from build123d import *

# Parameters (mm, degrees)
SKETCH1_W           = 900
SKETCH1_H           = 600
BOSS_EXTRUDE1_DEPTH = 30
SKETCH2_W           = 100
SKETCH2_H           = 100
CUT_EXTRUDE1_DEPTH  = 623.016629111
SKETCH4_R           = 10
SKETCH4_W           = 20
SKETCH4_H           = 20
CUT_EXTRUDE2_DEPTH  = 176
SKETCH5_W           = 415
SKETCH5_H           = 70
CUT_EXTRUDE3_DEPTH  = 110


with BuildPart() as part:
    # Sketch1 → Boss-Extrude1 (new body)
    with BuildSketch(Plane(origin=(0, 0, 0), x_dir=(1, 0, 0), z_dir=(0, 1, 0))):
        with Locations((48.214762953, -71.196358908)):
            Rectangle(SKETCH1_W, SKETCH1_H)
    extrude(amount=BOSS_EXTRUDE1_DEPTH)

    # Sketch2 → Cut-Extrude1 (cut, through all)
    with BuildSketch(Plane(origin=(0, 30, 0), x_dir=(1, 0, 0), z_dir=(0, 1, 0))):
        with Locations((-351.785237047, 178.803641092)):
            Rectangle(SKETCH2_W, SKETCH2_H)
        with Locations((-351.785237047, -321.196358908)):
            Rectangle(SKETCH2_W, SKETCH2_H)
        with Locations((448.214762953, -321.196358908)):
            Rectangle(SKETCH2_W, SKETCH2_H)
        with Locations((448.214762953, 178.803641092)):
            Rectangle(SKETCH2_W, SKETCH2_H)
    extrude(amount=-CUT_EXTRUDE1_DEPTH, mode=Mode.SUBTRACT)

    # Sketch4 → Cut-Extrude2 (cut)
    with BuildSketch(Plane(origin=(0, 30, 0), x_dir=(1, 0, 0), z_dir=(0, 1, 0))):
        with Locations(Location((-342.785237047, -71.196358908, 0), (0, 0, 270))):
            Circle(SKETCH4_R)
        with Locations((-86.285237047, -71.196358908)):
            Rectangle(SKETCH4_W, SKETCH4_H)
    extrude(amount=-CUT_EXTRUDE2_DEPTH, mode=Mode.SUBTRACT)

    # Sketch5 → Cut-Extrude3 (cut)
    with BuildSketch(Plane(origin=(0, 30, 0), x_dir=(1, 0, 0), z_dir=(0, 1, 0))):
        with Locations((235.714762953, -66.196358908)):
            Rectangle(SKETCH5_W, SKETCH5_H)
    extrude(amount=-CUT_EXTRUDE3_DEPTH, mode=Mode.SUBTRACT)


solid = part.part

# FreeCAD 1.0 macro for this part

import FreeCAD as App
import Part
import Sketcher
from FreeCAD import Vector
Q = App.Units.Quantity

doc = App.newDocument("Part")
params = doc.addObject("Spreadsheet::Sheet", "Params")
for row, (alias, value) in enumerate([
    ("sketch1_width", "900 mm"),
    ("sketch1_height", "600 mm"),
    ("pad1_length", "30 mm"),
    ("sketch2_width", "100 mm"),
    ("sketch3_diameter", "20 mm"),
    ("sketch3_width", "20 mm"),
    ("pocket2_length", "176 mm"),
    ("sketch4_width", "415 mm"),
    ("sketch4_height", "70 mm"),
    ("pocket3_length", "110 mm"),
], start=1):
    params.set(f"A{row}", alias)
    params.set(f"B{row}", "=" + value)
    params.setAlias(f"B{row}", alias)

body = doc.addObject("PartDesign::Body", "Body")

# Sketch on XZ plane
sketch1 = body.newObject("Sketcher::SketchObject", "Sketch")
sketch1.AttachmentSupport = (doc.getObject("XZ_Plane"), [""])
sketch1.MapMode = "FlatFace"
sketch1.addGeometry([
    Part.LineSegment(Vector(-401.785237, -228.803641, 0), Vector(-401.785237, 371.196359, 0)),
    Part.LineSegment(Vector(-401.785237, 371.196359, 0), Vector(498.214763, 371.196359, 0)),
    Part.LineSegment(Vector(498.214763, 371.196359, 0), Vector(498.214763, -228.803641, 0)),
    Part.LineSegment(Vector(498.214763, -228.803641, 0), Vector(-401.785237, -228.803641, 0)),
], False)
sketch1.addConstraint([
    Sketcher.Constraint("Coincident", 0, 2, 1, 1),
    Sketcher.Constraint("Coincident", 1, 2, 2, 1),
    Sketcher.Constraint("Coincident", 2, 2, 3, 1),
    Sketcher.Constraint("Coincident", 3, 2, 0, 1),
    Sketcher.Constraint("Vertical", 0),
    Sketcher.Constraint("Horizontal", 1),
    Sketcher.Constraint("Vertical", 2),
    Sketcher.Constraint("Horizontal", 3),
    Sketcher.Constraint("DistanceX", 1, 1, 1, 2, Q("900 mm")),
    Sketcher.Constraint("DistanceY", 0, 1, 0, 2, Q("600 mm")),
    Sketcher.Constraint("DistanceY", -1, 1, 0, 2, Q("371.196359 mm")),
    Sketcher.Constraint("DistanceX", 0, 2, -1, 1, Q("401.785237 mm")),
])
sketch1.setExpression("Constraints[8]", "Params.sketch1_width")
sketch1.setExpression("Constraints[9]", "Params.sketch1_height")
pad1 = body.newObject("PartDesign::Pad", "Pad")
pad1.Profile = sketch1
pad1.setExpression("Length", "Params.pad1_length")
pad1.Reversed = True

# Sketch on XZ plane
sketch2 = body.newObject("Sketcher::SketchObject", "Sketch001")
sketch2.AttachmentSupport = (doc.getObject("XZ_Plane"), [""])
sketch2.MapMode = "FlatFace"
sketch2.AttachmentOffset = App.Placement(Vector(0, 0, -30), App.Rotation())
sketch2.addGeometry([
    Part.LineSegment(Vector(-401.785237, -228.803641, 0), Vector(-401.785237, -128.803641, 0)),  # 0
    Part.LineSegment(Vector(-401.785237, -128.803641, 0), Vector(-301.785237, -128.803641, 0)),  # 1
    Part.LineSegment(Vector(-301.785237, -128.803641, 0), Vector(-301.785237, -228.803641, 0)),  # 2
    Part.LineSegment(Vector(-301.785237, -228.803641, 0), Vector(-401.785237, -228.803641, 0)),  # 3
    Part.LineSegment(Vector(-401.785237, 271.196359, 0), Vector(-401.785237, 371.196359, 0)),  # 4
    Part.LineSegment(Vector(-401.785237, 371.196359, 0), Vector(-301.785237, 371.196359, 0)),  # 5
    Part.LineSegment(Vector(-301.785237, 371.196359, 0), Vector(-301.785237, 271.196359, 0)),  # 6
    Part.LineSegment(Vector(-301.785237, 271.196359, 0), Vector(-401.785237, 271.196359, 0)),  # 7
    Part.LineSegment(Vector(398.214763, 271.196359, 0), Vector(398.214763, 371.196359, 0)),  # 8
    Part.LineSegment(Vector(398.214763, 371.196359, 0), Vector(498.214763, 371.196359, 0)),  # 9
    Part.LineSegment(Vector(498.214763, 371.196359, 0), Vector(498.214763, 271.196359, 0)),  # 10
    Part.LineSegment(Vector(498.214763, 271.196359, 0), Vector(398.214763, 271.196359, 0)),  # 11
    Part.LineSegment(Vector(398.214763, -228.803641, 0), Vector(398.214763, -128.803641, 0)),  # 12
    Part.LineSegment(Vector(398.214763, -128.803641, 0), Vector(498.214763, -128.803641, 0)),  # 13
    Part.LineSegment(Vector(498.214763, -128.803641, 0), Vector(498.214763, -228.803641, 0)),  # 14
    Part.LineSegment(Vector(498.214763, -228.803641, 0), Vector(398.214763, -228.803641, 0)),  # 15
], False)
sketch2.addConstraint([
    Sketcher.Constraint("Coincident", 0, 2, 1, 1),
    Sketcher.Constraint("Coincident", 1, 2, 2, 1),
    Sketcher.Constraint("Coincident", 2, 2, 3, 1),
    Sketcher.Constraint("Coincident", 3, 2, 0, 1),
    Sketcher.Constraint("Coincident", 4, 2, 5, 1),
    Sketcher.Constraint("Coincident", 5, 2, 6, 1),
    Sketcher.Constraint("Coincident", 6, 2, 7, 1),
    Sketcher.Constraint("Coincident", 7, 2, 4, 1),
    Sketcher.Constraint("Coincident", 8, 2, 9, 1),
    Sketcher.Constraint("Coincident", 9, 2, 10, 1),
    Sketcher.Constraint("Coincident", 10, 2, 11, 1),
    Sketcher.Constraint("Coincident", 11, 2, 8, 1),
    Sketcher.Constraint("Coincident", 12, 2, 13, 1),
    Sketcher.Constraint("Coincident", 13, 2, 14, 1),
    Sketcher.Constraint("Coincident", 14, 2, 15, 1),
    Sketcher.Constraint("Coincident", 15, 2, 12, 1),
    Sketcher.Constraint("Vertical", 0),
    Sketcher.Constraint("Horizontal", 1),
    Sketcher.Constraint("Vertical", 2),
    Sketcher.Constraint("Horizontal", 3),
    Sketcher.Constraint("Vertical", 4),
    Sketcher.Constraint("Horizontal", 5),
    Sketcher.Constraint("Vertical", 6),
    Sketcher.Constraint("Horizontal", 7),
    Sketcher.Constraint("Vertical", 8),
    Sketcher.Constraint("Horizontal", 9),
    Sketcher.Constraint("Vertical", 10),
    Sketcher.Constraint("Horizontal", 11),
    Sketcher.Constraint("Vertical", 12),
    Sketcher.Constraint("Horizontal", 13),
    Sketcher.Constraint("Vertical", 14),
    Sketcher.Constraint("Horizontal", 15),
    Sketcher.Constraint("Horizontal", 5, 2, 8, 2),
    Sketcher.Constraint("Horizontal", 7, 2, 10, 2),
    Sketcher.Constraint("Horizontal", 1, 2, 12, 2),
    Sketcher.Constraint("Horizontal", 3, 2, 14, 2),
    Sketcher.Constraint("Vertical", 3, 2, 4, 2),
    Sketcher.Constraint("Vertical", 2, 2, 5, 2),
    Sketcher.Constraint("Vertical", 11, 2, 12, 2),
    Sketcher.Constraint("Vertical", 10, 2, 13, 2),
    Sketcher.Constraint("Equal", 7, 9),
    Sketcher.Constraint("Equal", 15, 0),
    Sketcher.Constraint("Equal", 2, 4),
    Sketcher.Constraint("DistanceX", 1, 1, 1, 2, Q("100 mm")),
    Sketcher.Constraint("DistanceY", 0, 2, 4, 2, Q("500 mm")),
    Sketcher.Constraint("DistanceX", 5, 2, 8, 2, Q("700 mm")),
    Sketcher.Constraint("DistanceY", 0, 2, -1, 1, Q("128.803641 mm")),
    Sketcher.Constraint("DistanceX", 0, 2, -1, 1, Q("401.785237 mm")),
])
sketch2.setExpression("Constraints[43]", "Params.sketch2_width")
pocket1 = body.newObject("PartDesign::Pocket", "Pocket")
pocket1.Profile = sketch2
pocket1.Type = "ThroughAll"
pocket1.Reversed = True

# Sketch on XZ plane
sketch3 = body.newObject("Sketcher::SketchObject", "Sketch002")
sketch3.AttachmentSupport = (doc.getObject("XZ_Plane"), [""])
sketch3.MapMode = "FlatFace"
sketch3.AttachmentOffset = App.Placement(Vector(0, 0, -30), App.Rotation())
sketch3.addGeometry([
    Part.Circle(Vector(-342.785237, 71.196359, 0), Vector(0, 0, 1), 10),  # 0
    Part.LineSegment(Vector(-96.285237, 61.196359, 0), Vector(-96.285237, 81.196359, 0)),  # 1
    Part.LineSegment(Vector(-96.285237, 81.196359, 0), Vector(-76.285237, 81.196359, 0)),  # 2
    Part.LineSegment(Vector(-76.285237, 81.196359, 0), Vector(-76.285237, 61.196359, 0)),  # 3
    Part.LineSegment(Vector(-76.285237, 61.196359, 0), Vector(-96.285237, 61.196359, 0)),  # 4
], False)
sketch3.addConstraint([
    Sketcher.Constraint("Coincident", 1, 2, 2, 1),
    Sketcher.Constraint("Coincident", 2, 2, 3, 1),
    Sketcher.Constraint("Coincident", 3, 2, 4, 1),
    Sketcher.Constraint("Coincident", 4, 2, 1, 1),
    Sketcher.Constraint("Vertical", 1),
    Sketcher.Constraint("Horizontal", 2),
    Sketcher.Constraint("Vertical", 3),
    Sketcher.Constraint("Horizontal", 4),
    Sketcher.Constraint("Equal", 4, 1),
    Sketcher.Constraint("Diameter", 0, Q("20 mm")),
    Sketcher.Constraint("DistanceX", 2, 1, 2, 2, Q("20 mm")),
    Sketcher.Constraint("DistanceY", 0, 3, 1, 2, Q("10 mm")),
    Sketcher.Constraint("DistanceX", 0, 3, 1, 2, Q("246.5 mm")),
    Sketcher.Constraint("DistanceY", -1, 1, 0, 3, Q("71.196359 mm")),
    Sketcher.Constraint("DistanceX", 0, 3, -1, 1, Q("342.785237 mm")),
])
sketch3.setExpression("Constraints[9]", "Params.sketch3_diameter")
sketch3.setExpression("Constraints[10]", "Params.sketch3_width")
pocket2 = body.newObject("PartDesign::Pocket", "Pocket001")
pocket2.Profile = sketch3
pocket2.setExpression("Length", "Params.pocket2_length")
pocket2.Reversed = True

# Sketch on XZ plane
sketch4 = body.newObject("Sketcher::SketchObject", "Sketch003")
sketch4.AttachmentSupport = (doc.getObject("XZ_Plane"), [""])
sketch4.MapMode = "FlatFace"
sketch4.AttachmentOffset = App.Placement(Vector(0, 0, -30), App.Rotation())
sketch4.addGeometry([
    Part.LineSegment(Vector(28.214763, 31.196359, 0), Vector(28.214763, 101.196359, 0)),
    Part.LineSegment(Vector(28.214763, 101.196359, 0), Vector(443.214763, 101.196359, 0)),
    Part.LineSegment(Vector(443.214763, 101.196359, 0), Vector(443.214763, 31.196359, 0)),
    Part.LineSegment(Vector(443.214763, 31.196359, 0), Vector(28.214763, 31.196359, 0)),
], False)
sketch4.addConstraint([
    Sketcher.Constraint("Coincident", 0, 2, 1, 1),
    Sketcher.Constraint("Coincident", 1, 2, 2, 1),
    Sketcher.Constraint("Coincident", 2, 2, 3, 1),
    Sketcher.Constraint("Coincident", 3, 2, 0, 1),
    Sketcher.Constraint("Vertical", 0),
    Sketcher.Constraint("Horizontal", 1),
    Sketcher.Constraint("Vertical", 2),
    Sketcher.Constraint("Horizontal", 3),
    Sketcher.Constraint("DistanceX", 1, 1, 1, 2, Q("415 mm")),
    Sketcher.Constraint("DistanceY", 0, 1, 0, 2, Q("70 mm")),
    Sketcher.Constraint("DistanceY", -1, 1, 0, 2, Q("101.196359 mm")),
    Sketcher.Constraint("DistanceX", -1, 1, 0, 2, Q("28.214763 mm")),
])
sketch4.setExpression("Constraints[8]", "Params.sketch4_width")
sketch4.setExpression("Constraints[9]", "Params.sketch4_height")
pocket3 = body.newObject("PartDesign::Pocket", "Pocket002")
pocket3.Profile = sketch4
pocket3.setExpression("Length", "Params.pocket3_length")
pocket3.Reversed = True

doc.recompute()
